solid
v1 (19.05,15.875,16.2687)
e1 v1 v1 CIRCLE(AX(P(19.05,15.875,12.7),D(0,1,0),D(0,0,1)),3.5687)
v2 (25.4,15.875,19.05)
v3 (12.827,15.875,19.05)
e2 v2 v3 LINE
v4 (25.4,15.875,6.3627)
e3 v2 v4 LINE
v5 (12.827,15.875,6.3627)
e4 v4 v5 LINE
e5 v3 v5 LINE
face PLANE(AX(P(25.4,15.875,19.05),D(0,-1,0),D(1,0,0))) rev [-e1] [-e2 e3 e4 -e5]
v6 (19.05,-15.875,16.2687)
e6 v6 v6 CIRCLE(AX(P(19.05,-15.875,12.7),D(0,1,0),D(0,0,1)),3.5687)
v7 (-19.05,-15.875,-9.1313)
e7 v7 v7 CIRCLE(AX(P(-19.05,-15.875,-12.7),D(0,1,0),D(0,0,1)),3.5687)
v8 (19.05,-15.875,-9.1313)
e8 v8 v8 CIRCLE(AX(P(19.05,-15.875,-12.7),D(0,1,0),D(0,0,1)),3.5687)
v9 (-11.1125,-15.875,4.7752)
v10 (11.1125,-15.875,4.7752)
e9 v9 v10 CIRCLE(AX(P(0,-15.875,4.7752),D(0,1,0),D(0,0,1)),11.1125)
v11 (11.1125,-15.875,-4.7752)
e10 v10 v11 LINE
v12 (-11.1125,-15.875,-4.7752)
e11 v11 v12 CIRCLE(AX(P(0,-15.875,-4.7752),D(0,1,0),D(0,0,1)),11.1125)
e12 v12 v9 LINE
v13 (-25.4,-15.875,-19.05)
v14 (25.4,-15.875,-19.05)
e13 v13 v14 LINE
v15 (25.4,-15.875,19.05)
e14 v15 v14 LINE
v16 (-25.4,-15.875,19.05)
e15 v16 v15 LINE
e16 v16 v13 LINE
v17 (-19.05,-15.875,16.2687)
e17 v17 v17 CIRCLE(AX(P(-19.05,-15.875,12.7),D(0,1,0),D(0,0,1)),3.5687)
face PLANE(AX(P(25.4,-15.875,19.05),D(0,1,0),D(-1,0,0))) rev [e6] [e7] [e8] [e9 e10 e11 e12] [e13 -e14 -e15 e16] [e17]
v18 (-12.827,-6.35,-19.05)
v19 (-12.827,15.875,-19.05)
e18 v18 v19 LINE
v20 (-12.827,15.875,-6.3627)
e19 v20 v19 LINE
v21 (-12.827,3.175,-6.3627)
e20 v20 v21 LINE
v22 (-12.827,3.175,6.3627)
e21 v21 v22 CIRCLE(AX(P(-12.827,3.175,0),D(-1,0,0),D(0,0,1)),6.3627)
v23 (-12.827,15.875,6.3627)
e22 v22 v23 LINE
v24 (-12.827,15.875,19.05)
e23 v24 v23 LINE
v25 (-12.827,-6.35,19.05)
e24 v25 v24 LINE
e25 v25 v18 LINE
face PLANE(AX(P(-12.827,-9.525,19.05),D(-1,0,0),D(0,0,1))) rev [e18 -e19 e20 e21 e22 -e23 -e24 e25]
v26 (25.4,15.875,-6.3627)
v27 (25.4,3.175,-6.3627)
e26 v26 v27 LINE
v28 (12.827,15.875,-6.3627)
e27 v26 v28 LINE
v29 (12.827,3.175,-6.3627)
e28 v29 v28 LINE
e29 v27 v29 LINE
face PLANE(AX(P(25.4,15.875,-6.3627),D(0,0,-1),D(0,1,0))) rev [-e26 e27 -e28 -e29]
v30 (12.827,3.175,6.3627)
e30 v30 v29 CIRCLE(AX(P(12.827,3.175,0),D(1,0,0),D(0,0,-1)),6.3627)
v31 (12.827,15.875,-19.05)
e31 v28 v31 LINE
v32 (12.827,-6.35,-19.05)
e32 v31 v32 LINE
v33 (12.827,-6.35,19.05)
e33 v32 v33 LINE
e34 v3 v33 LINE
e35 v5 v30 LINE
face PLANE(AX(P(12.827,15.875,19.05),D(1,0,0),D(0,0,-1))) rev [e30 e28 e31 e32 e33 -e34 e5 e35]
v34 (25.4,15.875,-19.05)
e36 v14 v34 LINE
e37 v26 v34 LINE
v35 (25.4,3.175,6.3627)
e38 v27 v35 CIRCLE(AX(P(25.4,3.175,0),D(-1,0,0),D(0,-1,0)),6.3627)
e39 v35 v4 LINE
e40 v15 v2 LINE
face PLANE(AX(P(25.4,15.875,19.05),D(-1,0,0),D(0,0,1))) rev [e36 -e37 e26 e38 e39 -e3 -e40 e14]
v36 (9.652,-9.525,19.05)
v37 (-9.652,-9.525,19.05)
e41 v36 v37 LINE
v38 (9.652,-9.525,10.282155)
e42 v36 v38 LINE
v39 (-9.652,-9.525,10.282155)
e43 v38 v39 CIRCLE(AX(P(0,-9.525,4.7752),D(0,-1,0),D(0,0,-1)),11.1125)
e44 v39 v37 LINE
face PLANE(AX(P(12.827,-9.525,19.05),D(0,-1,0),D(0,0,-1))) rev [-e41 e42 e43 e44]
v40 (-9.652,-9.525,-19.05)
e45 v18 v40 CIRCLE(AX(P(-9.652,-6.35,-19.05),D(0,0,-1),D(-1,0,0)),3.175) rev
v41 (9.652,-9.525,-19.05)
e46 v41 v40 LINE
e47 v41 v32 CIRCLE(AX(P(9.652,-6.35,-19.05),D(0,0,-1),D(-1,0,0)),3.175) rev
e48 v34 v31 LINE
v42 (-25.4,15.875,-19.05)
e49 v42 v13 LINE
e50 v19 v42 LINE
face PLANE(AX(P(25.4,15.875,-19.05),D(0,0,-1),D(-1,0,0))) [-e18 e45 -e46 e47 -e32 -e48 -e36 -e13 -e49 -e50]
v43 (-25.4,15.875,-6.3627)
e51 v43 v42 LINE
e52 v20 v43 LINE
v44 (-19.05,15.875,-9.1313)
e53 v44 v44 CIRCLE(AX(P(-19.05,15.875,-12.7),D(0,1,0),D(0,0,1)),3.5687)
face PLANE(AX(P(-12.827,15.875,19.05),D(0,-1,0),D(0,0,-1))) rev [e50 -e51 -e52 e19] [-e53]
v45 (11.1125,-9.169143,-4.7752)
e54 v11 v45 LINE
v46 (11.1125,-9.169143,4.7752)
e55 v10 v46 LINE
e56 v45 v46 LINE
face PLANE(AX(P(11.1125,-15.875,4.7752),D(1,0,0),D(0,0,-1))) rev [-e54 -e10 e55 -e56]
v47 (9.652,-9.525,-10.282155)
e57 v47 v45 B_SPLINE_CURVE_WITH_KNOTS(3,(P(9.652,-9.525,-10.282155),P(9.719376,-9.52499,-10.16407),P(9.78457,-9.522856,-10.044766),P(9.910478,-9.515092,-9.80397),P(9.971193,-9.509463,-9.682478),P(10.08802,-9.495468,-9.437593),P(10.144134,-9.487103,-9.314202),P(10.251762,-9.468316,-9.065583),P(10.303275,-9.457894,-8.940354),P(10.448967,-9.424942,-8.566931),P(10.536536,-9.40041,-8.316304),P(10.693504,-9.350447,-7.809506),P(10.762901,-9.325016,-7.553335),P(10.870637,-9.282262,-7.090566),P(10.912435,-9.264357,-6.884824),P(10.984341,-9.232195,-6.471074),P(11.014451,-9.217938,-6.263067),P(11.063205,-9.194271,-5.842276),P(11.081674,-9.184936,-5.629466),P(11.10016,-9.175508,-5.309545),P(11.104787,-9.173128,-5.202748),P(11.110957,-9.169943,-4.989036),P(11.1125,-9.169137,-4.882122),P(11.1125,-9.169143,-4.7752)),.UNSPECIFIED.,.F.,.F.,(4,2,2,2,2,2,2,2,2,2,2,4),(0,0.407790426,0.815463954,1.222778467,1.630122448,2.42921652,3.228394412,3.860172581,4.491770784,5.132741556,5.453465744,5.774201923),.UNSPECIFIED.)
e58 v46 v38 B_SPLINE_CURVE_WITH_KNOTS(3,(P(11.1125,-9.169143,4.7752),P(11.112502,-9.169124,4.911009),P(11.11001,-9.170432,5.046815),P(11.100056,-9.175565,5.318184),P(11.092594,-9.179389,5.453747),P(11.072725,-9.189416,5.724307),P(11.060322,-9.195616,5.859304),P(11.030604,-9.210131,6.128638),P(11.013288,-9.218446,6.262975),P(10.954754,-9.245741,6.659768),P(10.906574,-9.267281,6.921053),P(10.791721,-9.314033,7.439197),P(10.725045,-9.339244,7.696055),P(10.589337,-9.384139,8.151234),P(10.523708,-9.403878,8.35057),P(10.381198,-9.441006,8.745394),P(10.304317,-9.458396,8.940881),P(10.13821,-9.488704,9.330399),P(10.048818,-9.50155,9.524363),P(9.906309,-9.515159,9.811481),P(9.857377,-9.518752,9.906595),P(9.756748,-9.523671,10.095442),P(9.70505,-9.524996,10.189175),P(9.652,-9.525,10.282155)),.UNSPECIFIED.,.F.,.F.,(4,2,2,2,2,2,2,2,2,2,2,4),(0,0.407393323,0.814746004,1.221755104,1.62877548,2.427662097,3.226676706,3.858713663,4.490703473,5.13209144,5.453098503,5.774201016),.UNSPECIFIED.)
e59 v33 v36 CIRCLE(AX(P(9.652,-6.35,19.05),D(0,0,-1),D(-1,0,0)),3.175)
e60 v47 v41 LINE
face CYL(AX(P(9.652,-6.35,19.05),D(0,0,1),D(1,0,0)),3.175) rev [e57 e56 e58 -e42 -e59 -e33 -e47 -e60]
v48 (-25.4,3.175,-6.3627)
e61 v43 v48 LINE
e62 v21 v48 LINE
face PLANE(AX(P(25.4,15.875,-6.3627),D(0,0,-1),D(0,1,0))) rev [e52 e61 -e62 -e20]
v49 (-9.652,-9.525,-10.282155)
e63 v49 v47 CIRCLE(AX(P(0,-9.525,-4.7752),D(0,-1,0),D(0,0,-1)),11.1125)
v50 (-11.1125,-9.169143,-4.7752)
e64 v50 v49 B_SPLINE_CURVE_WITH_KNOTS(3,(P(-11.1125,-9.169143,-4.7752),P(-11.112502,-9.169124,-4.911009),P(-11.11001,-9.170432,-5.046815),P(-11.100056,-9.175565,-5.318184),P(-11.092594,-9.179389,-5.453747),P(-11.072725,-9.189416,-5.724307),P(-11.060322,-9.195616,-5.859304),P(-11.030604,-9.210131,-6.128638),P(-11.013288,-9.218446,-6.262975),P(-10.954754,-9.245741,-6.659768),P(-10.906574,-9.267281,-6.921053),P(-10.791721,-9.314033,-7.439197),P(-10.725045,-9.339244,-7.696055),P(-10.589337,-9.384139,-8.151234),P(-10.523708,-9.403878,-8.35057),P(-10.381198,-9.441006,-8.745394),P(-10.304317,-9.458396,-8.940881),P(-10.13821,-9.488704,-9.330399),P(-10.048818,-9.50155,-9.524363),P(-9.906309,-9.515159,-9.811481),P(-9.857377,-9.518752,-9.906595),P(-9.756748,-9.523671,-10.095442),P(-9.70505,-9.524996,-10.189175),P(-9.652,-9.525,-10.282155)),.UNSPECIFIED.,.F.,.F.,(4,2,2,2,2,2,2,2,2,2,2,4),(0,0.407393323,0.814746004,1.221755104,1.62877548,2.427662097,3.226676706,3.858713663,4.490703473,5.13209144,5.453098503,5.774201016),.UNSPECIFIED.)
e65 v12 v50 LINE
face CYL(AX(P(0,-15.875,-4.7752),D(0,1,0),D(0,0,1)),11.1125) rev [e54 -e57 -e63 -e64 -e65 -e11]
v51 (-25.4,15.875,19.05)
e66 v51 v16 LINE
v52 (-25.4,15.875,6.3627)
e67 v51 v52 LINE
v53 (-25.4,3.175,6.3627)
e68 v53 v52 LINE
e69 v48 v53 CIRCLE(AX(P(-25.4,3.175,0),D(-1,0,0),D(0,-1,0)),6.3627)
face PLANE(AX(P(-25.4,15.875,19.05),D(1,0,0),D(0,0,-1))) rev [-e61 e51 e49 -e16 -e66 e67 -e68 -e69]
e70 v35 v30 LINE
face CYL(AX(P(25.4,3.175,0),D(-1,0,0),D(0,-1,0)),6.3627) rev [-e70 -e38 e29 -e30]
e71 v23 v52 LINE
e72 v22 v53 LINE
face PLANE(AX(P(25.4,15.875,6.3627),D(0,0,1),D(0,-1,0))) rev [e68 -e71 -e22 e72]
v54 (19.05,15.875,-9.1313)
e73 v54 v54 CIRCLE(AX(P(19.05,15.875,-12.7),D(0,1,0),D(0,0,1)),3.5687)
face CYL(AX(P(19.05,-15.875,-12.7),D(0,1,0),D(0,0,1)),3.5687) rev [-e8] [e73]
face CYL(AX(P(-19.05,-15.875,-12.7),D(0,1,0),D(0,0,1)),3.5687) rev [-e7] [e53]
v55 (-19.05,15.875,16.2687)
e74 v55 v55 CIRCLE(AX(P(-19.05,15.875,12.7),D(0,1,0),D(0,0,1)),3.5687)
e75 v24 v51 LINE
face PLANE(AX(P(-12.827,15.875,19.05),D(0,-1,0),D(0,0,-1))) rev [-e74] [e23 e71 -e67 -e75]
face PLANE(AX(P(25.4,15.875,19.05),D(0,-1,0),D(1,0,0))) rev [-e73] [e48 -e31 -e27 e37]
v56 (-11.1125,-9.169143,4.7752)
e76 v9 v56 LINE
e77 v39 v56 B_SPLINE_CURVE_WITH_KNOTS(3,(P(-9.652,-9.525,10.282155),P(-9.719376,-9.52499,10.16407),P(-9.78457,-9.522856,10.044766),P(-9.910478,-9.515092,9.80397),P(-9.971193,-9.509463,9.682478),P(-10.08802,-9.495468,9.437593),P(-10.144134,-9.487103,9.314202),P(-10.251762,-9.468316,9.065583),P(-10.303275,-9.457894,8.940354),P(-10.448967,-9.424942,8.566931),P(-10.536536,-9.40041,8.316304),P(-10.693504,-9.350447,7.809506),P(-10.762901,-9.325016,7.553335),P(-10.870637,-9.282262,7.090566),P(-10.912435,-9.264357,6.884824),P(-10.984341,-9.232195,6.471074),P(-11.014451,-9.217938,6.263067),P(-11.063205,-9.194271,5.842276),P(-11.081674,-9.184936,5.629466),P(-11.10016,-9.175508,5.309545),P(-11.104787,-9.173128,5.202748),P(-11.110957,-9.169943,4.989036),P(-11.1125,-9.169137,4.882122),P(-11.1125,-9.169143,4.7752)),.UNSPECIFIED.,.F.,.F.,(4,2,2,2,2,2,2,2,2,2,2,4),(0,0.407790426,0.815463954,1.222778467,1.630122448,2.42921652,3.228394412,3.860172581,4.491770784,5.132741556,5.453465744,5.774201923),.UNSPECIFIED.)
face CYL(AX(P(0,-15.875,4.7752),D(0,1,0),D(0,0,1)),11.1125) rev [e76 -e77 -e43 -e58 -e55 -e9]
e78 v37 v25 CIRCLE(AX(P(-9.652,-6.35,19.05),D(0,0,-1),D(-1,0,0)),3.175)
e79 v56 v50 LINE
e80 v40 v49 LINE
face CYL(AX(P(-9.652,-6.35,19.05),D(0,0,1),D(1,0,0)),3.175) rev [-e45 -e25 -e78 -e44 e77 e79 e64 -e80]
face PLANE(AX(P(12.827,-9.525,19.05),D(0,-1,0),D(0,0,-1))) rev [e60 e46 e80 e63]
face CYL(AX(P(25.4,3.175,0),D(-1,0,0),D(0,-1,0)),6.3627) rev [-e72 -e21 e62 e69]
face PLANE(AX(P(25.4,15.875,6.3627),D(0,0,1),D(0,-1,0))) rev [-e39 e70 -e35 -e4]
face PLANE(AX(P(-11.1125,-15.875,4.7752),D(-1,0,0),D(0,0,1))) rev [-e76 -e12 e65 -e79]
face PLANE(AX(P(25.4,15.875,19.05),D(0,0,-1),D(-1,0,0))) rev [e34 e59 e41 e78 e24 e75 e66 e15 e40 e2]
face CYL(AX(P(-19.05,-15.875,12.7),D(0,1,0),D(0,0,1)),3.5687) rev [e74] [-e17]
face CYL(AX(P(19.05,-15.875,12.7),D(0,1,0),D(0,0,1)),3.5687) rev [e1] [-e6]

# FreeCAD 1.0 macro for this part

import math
import FreeCAD as App
import Part
import Sketcher
Q = App.Units.Quantity


def edges_at(feature, points):
    """Names of the edges that pass closest to the given points."""
    edges = feature.Shape.Edges
    near = lambda p: min(range(len(edges)), key=lambda i: edges[i].distToShape(Part.Vertex(*p))[0])
    return sorted({f"Edge{near(p) + 1}" for p in points})

doc = App.newDocument("Part")
body = doc.addObject("PartDesign::Body", "Body")

# Sketch on XY plane
sketch1 = body.newObject("Sketcher::SketchObject", "Sketch")
sketch1.AttachmentSupport = (doc.getObject("XY_Plane"), [""])
sketch1.MapMode = "FlatFace"
sketch1.addGeometry([
    Part.LineSegment(App.Vector(25, 16, 0), App.Vector(13, 16, 0)),  # 0
    Part.LineSegment(App.Vector(13, 16, 0), App.Vector(13, -10, 0)),  # 1
    Part.LineSegment(App.Vector(13, -10, 0), App.Vector(-13, -10, 0)),  # 2
    Part.LineSegment(App.Vector(-13, -10, 0), App.Vector(-13, 16, 0)),  # 3
    Part.LineSegment(App.Vector(-13, 16, 0), App.Vector(-25, 16, 0)),  # 4
    Part.LineSegment(App.Vector(-25, 16, 0), App.Vector(-25, -16, 0)),  # 5
    Part.LineSegment(App.Vector(-25, -16, 0), App.Vector(25, -16, 0)),  # 6
    Part.LineSegment(App.Vector(25, -16, 0), App.Vector(25, 16, 0)),  # 7
], False)
sketch1.addConstraint([
    Sketcher.Constraint("Coincident", 0, 2, 1, 1),
    Sketcher.Constraint("Coincident", 1, 2, 2, 1),
    Sketcher.Constraint("Coincident", 2, 2, 3, 1),
    Sketcher.Constraint("Coincident", 3, 2, 4, 1),
    Sketcher.Constraint("Coincident", 4, 2, 5, 1),
    Sketcher.Constraint("Coincident", 5, 2, 6, 1),
    Sketcher.Constraint("Coincident", 6, 2, 7, 1),
    Sketcher.Constraint("Coincident", 7, 2, 0, 1),
    Sketcher.Constraint("Horizontal", 0),
    Sketcher.Constraint("Vertical", 1),
    Sketcher.Constraint("Horizontal", 2),
    Sketcher.Constraint("Vertical", 3),
    Sketcher.Constraint("Horizontal", 4),
    Sketcher.Constraint("Vertical", 5),
    Sketcher.Constraint("Horizontal", 6),
    Sketcher.Constraint("Vertical", 7),
    Sketcher.Constraint("Symmetric", 4, 2, 6, 2, -1, 1),
    Sketcher.Constraint("Symmetric", 0, 2, 3, 2, -2),
    Sketcher.Constraint("DistanceX", 6, 1, 6, 2, Q("2 in")),
    Sketcher.Constraint("DistanceY", 1, 2, 1, 1, Q("1 in")),
    Sketcher.Constraint("DistanceX", 2, 2, 2, 1, Q("1.01 in")),
    Sketcher.Constraint("DistanceY", 5, 2, 5, 1, Q("1.25 in")),
])
pad1 = body.newObject("PartDesign::Pad", "Pad")
pad1.Profile = sketch1
pad1.Length = Q("1.5 in")
pad1.Midplane = True

# Sketch on YZ plane
sketch2 = body.newObject("Sketcher::SketchObject", "Sketch001")
sketch2.AttachmentSupport = (doc.getObject("YZ_Plane"), [""])
sketch2.MapMode = "FlatFace"
sketch2.AttachmentOffset = App.Placement(App.Vector(0, 0, -1 * 25.4), App.Rotation())
sketch2.addGeometry([
    Part.LineSegment(App.Vector(16, -6, 0), App.Vector(3, -6, 0)),
    Part.ArcOfCircle(Part.Circle(App.Vector(3, 0, 0), App.Vector(0, 0, 1), 6), math.radians(90), math.radians(270)),
    Part.LineSegment(App.Vector(3, 6, 0), App.Vector(16, 6, 0)),
    Part.LineSegment(App.Vector(16, 6, 0), App.Vector(16, -6, 0)),
], False)
sketch2.addConstraint([
    Sketcher.Constraint("Tangent", 0, 2, 1, 2),
    Sketcher.Constraint("Tangent", 1, 1, 2, 1),
    Sketcher.Constraint("Coincident", 2, 2, 3, 1),
    Sketcher.Constraint("Coincident", 3, 2, 0, 1),
    Sketcher.Constraint("Horizontal", 0),
    Sketcher.Constraint("Horizontal", 2),
    Sketcher.Constraint("Vertical", 3),
    Sketcher.Constraint("PointOnObject", 1, 3, -1),
    Sketcher.Constraint("DistanceX", 0, 2, 0, 1, Q("0.5 in")),
    Sketcher.Constraint("Radius", 1, Q("0.2505 in")),
    Sketcher.Constraint("DistanceX", -1, 1, 1, 3, Q("0.125 in")),
])
pocket1 = body.newObject("PartDesign::Pocket", "Pocket")
pocket1.Profile = sketch2
pocket1.Type = "ThroughAll"
pocket1.Reversed = True
doc.recompute()

fillet = body.newObject("PartDesign::Fillet", "Fillet")
fillet.Base = (pocket1, edges_at(pocket1, [(-12.827, -9.525, 0), (12.827, -9.525, 0)]))
fillet.Radius = Q("0.125 in")

# Sketch on XZ plane
sketch3 = body.newObject("Sketcher::SketchObject", "Sketch002")
sketch3.AttachmentSupport = (doc.getObject("XZ_Plane"), [""])
sketch3.MapMode = "FlatFace"
sketch3.AttachmentOffset = App.Placement(App.Vector(0, 0, 0.375 * 25.4), App.Rotation())
sketch3.addGeometry([
    Part.LineSegment(App.Vector(11, 5, 0), App.Vector(11, -5, 0)),
    Part.ArcOfCircle(Part.Circle(App.Vector(0, -5, 0), App.Vector(0, 0, 1), 11), math.radians(180), math.radians(360)),
    Part.LineSegment(App.Vector(-11, -5, 0), App.Vector(-11, 5, 0)),
    Part.ArcOfCircle(Part.Circle(App.Vector(0, 5, 0), App.Vector(0, 0, 1), 11), math.radians(0), math.radians(180)),
], False)
sketch3.addConstraint([
    Sketcher.Constraint("Tangent", 0, 2, 1, 2),
    Sketcher.Constraint("Tangent", 1, 1, 2, 1),
    Sketcher.Constraint("Tangent", 2, 2, 3, 2),
    Sketcher.Constraint("Tangent", 3, 1, 0, 1),
    Sketcher.Constraint("Vertical", 0),
    Sketcher.Constraint("Vertical", 2),
    Sketcher.Constraint("Symmetric", 1, 3, 3, 3, -1, 1),
    Sketcher.Constraint("Radius", 1, Q("0.4375 in")),
    Sketcher.Constraint("DistanceY", 0, 2, 0, 1, Q("0.376 in")),
])
pocket2 = body.newObject("PartDesign::Pocket", "Pocket001")
pocket2.Profile = sketch3
pocket2.Type = "ThroughAll"
pocket2.Midplane = True

# Sketch on XZ plane
sketch4 = body.newObject("Sketcher::SketchObject", "Sketch003")
sketch4.AttachmentSupport = (doc.getObject("XZ_Plane"), [""])
sketch4.MapMode = "FlatFace"
sketch4.AttachmentOffset = App.Placement(App.Vector(0, 0, -0.625 * 25.4), App.Rotation())
sketch4.addGeometry([
    Part.Circle(App.Vector(19.1, -12.7, 0), App.Vector(0, 0, 1), 3.6),
    Part.Circle(App.Vector(19.1, 12.7, 0), App.Vector(0, 0, 1), 3.6),
    Part.Circle(App.Vector(-19.1, 12.7, 0), App.Vector(0, 0, 1), 3.6),
    Part.Circle(App.Vector(-19.1, -12.7, 0), App.Vector(0, 0, 1), 3.6),
], False)
sketch4.addConstraint([
    Sketcher.Constraint("Equal", 0, 1),
    Sketcher.Constraint("Equal", 1, 2),
    Sketcher.Constraint("Equal", 2, 3),
    Sketcher.Constraint("Symmetric", 0, 3, 2, 3, -1, 1),
    Sketcher.Constraint("Symmetric", 1, 3, 3, 3, -1, 1),
    Sketcher.Constraint("Symmetric", 1, 3, 2, 3, -2),
    Sketcher.Constraint("Diameter", 0, Q("0.281 in")),
    Sketcher.Constraint("DistanceY", 0, 3, 1, 3, Q("1 in")),
    Sketcher.Constraint("DistanceX", 2, 3, 1, 3, Q("1.5 in")),
])
pocket3 = body.newObject("PartDesign::Pocket", "Pocket002")
pocket3.Profile = sketch4
pocket3.Type = "ThroughAll"
pocket3.Reversed = True

doc.recompute()
